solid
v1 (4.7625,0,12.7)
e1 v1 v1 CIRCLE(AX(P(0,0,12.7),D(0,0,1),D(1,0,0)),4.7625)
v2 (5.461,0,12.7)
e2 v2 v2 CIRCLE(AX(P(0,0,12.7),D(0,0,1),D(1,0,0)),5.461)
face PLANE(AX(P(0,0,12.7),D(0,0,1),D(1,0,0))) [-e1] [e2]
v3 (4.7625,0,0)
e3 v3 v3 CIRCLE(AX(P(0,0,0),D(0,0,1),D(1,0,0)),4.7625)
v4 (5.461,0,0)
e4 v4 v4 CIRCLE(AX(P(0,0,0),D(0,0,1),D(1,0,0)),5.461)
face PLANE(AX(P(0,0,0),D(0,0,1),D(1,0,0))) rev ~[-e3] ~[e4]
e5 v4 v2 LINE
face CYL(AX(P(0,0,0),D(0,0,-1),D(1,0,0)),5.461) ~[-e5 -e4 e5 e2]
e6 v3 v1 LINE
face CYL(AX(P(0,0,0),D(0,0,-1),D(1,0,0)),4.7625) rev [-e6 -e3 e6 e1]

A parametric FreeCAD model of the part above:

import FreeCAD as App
import Part
import Sketcher
from FreeCAD import Vector
Q = App.Units.Quantity

doc = App.newDocument("Part")
params = doc.addObject("Spreadsheet::Sheet", "Params")
for row, (alias, value) in enumerate([
    ("sketch1_diameter", "0.43 in"),
    ("sketch1_diameter2", "0.375 in"),
    ("pad1_length", "0.5 in"),
], start=1):
    params.set(f"A{row}", alias)
    params.set(f"B{row}", "=" + value)
    params.setAlias(f"B{row}", alias)

body = doc.addObject("PartDesign::Body", "Body")

# Sketch on XY plane
sketch1 = body.newObject("Sketcher::SketchObject", "Sketch")
sketch1.AttachmentSupport = (doc.getObject("XY_Plane"), [""])
sketch1.MapMode = "FlatFace"
sketch1.addGeometry([
    Part.Circle(Vector(0, 0, 0), Vector(0, 0, 1), 5.5),
    Part.Circle(Vector(0, 0, 0), Vector(0, 0, 1), 4.8),
], False)
sketch1.addConstraint([
    Sketcher.Constraint("Coincident", 0, 3, -1, 1),
    Sketcher.Constraint("Coincident", 1, 3, -1, 1),
    Sketcher.Constraint("Diameter", 0, Q("0.43 in")),
    Sketcher.Constraint("Diameter", 1, Q("0.375 in")),
])
sketch1.setExpression("Constraints[2]", "Params.sketch1_diameter")
sketch1.setExpression("Constraints[3]", "Params.sketch1_diameter2")
pad1 = body.newObject("PartDesign::Pad", "Pad")
pad1.Profile = sketch1
pad1.setExpression("Length", "Params.pad1_length")

doc.recompute()
